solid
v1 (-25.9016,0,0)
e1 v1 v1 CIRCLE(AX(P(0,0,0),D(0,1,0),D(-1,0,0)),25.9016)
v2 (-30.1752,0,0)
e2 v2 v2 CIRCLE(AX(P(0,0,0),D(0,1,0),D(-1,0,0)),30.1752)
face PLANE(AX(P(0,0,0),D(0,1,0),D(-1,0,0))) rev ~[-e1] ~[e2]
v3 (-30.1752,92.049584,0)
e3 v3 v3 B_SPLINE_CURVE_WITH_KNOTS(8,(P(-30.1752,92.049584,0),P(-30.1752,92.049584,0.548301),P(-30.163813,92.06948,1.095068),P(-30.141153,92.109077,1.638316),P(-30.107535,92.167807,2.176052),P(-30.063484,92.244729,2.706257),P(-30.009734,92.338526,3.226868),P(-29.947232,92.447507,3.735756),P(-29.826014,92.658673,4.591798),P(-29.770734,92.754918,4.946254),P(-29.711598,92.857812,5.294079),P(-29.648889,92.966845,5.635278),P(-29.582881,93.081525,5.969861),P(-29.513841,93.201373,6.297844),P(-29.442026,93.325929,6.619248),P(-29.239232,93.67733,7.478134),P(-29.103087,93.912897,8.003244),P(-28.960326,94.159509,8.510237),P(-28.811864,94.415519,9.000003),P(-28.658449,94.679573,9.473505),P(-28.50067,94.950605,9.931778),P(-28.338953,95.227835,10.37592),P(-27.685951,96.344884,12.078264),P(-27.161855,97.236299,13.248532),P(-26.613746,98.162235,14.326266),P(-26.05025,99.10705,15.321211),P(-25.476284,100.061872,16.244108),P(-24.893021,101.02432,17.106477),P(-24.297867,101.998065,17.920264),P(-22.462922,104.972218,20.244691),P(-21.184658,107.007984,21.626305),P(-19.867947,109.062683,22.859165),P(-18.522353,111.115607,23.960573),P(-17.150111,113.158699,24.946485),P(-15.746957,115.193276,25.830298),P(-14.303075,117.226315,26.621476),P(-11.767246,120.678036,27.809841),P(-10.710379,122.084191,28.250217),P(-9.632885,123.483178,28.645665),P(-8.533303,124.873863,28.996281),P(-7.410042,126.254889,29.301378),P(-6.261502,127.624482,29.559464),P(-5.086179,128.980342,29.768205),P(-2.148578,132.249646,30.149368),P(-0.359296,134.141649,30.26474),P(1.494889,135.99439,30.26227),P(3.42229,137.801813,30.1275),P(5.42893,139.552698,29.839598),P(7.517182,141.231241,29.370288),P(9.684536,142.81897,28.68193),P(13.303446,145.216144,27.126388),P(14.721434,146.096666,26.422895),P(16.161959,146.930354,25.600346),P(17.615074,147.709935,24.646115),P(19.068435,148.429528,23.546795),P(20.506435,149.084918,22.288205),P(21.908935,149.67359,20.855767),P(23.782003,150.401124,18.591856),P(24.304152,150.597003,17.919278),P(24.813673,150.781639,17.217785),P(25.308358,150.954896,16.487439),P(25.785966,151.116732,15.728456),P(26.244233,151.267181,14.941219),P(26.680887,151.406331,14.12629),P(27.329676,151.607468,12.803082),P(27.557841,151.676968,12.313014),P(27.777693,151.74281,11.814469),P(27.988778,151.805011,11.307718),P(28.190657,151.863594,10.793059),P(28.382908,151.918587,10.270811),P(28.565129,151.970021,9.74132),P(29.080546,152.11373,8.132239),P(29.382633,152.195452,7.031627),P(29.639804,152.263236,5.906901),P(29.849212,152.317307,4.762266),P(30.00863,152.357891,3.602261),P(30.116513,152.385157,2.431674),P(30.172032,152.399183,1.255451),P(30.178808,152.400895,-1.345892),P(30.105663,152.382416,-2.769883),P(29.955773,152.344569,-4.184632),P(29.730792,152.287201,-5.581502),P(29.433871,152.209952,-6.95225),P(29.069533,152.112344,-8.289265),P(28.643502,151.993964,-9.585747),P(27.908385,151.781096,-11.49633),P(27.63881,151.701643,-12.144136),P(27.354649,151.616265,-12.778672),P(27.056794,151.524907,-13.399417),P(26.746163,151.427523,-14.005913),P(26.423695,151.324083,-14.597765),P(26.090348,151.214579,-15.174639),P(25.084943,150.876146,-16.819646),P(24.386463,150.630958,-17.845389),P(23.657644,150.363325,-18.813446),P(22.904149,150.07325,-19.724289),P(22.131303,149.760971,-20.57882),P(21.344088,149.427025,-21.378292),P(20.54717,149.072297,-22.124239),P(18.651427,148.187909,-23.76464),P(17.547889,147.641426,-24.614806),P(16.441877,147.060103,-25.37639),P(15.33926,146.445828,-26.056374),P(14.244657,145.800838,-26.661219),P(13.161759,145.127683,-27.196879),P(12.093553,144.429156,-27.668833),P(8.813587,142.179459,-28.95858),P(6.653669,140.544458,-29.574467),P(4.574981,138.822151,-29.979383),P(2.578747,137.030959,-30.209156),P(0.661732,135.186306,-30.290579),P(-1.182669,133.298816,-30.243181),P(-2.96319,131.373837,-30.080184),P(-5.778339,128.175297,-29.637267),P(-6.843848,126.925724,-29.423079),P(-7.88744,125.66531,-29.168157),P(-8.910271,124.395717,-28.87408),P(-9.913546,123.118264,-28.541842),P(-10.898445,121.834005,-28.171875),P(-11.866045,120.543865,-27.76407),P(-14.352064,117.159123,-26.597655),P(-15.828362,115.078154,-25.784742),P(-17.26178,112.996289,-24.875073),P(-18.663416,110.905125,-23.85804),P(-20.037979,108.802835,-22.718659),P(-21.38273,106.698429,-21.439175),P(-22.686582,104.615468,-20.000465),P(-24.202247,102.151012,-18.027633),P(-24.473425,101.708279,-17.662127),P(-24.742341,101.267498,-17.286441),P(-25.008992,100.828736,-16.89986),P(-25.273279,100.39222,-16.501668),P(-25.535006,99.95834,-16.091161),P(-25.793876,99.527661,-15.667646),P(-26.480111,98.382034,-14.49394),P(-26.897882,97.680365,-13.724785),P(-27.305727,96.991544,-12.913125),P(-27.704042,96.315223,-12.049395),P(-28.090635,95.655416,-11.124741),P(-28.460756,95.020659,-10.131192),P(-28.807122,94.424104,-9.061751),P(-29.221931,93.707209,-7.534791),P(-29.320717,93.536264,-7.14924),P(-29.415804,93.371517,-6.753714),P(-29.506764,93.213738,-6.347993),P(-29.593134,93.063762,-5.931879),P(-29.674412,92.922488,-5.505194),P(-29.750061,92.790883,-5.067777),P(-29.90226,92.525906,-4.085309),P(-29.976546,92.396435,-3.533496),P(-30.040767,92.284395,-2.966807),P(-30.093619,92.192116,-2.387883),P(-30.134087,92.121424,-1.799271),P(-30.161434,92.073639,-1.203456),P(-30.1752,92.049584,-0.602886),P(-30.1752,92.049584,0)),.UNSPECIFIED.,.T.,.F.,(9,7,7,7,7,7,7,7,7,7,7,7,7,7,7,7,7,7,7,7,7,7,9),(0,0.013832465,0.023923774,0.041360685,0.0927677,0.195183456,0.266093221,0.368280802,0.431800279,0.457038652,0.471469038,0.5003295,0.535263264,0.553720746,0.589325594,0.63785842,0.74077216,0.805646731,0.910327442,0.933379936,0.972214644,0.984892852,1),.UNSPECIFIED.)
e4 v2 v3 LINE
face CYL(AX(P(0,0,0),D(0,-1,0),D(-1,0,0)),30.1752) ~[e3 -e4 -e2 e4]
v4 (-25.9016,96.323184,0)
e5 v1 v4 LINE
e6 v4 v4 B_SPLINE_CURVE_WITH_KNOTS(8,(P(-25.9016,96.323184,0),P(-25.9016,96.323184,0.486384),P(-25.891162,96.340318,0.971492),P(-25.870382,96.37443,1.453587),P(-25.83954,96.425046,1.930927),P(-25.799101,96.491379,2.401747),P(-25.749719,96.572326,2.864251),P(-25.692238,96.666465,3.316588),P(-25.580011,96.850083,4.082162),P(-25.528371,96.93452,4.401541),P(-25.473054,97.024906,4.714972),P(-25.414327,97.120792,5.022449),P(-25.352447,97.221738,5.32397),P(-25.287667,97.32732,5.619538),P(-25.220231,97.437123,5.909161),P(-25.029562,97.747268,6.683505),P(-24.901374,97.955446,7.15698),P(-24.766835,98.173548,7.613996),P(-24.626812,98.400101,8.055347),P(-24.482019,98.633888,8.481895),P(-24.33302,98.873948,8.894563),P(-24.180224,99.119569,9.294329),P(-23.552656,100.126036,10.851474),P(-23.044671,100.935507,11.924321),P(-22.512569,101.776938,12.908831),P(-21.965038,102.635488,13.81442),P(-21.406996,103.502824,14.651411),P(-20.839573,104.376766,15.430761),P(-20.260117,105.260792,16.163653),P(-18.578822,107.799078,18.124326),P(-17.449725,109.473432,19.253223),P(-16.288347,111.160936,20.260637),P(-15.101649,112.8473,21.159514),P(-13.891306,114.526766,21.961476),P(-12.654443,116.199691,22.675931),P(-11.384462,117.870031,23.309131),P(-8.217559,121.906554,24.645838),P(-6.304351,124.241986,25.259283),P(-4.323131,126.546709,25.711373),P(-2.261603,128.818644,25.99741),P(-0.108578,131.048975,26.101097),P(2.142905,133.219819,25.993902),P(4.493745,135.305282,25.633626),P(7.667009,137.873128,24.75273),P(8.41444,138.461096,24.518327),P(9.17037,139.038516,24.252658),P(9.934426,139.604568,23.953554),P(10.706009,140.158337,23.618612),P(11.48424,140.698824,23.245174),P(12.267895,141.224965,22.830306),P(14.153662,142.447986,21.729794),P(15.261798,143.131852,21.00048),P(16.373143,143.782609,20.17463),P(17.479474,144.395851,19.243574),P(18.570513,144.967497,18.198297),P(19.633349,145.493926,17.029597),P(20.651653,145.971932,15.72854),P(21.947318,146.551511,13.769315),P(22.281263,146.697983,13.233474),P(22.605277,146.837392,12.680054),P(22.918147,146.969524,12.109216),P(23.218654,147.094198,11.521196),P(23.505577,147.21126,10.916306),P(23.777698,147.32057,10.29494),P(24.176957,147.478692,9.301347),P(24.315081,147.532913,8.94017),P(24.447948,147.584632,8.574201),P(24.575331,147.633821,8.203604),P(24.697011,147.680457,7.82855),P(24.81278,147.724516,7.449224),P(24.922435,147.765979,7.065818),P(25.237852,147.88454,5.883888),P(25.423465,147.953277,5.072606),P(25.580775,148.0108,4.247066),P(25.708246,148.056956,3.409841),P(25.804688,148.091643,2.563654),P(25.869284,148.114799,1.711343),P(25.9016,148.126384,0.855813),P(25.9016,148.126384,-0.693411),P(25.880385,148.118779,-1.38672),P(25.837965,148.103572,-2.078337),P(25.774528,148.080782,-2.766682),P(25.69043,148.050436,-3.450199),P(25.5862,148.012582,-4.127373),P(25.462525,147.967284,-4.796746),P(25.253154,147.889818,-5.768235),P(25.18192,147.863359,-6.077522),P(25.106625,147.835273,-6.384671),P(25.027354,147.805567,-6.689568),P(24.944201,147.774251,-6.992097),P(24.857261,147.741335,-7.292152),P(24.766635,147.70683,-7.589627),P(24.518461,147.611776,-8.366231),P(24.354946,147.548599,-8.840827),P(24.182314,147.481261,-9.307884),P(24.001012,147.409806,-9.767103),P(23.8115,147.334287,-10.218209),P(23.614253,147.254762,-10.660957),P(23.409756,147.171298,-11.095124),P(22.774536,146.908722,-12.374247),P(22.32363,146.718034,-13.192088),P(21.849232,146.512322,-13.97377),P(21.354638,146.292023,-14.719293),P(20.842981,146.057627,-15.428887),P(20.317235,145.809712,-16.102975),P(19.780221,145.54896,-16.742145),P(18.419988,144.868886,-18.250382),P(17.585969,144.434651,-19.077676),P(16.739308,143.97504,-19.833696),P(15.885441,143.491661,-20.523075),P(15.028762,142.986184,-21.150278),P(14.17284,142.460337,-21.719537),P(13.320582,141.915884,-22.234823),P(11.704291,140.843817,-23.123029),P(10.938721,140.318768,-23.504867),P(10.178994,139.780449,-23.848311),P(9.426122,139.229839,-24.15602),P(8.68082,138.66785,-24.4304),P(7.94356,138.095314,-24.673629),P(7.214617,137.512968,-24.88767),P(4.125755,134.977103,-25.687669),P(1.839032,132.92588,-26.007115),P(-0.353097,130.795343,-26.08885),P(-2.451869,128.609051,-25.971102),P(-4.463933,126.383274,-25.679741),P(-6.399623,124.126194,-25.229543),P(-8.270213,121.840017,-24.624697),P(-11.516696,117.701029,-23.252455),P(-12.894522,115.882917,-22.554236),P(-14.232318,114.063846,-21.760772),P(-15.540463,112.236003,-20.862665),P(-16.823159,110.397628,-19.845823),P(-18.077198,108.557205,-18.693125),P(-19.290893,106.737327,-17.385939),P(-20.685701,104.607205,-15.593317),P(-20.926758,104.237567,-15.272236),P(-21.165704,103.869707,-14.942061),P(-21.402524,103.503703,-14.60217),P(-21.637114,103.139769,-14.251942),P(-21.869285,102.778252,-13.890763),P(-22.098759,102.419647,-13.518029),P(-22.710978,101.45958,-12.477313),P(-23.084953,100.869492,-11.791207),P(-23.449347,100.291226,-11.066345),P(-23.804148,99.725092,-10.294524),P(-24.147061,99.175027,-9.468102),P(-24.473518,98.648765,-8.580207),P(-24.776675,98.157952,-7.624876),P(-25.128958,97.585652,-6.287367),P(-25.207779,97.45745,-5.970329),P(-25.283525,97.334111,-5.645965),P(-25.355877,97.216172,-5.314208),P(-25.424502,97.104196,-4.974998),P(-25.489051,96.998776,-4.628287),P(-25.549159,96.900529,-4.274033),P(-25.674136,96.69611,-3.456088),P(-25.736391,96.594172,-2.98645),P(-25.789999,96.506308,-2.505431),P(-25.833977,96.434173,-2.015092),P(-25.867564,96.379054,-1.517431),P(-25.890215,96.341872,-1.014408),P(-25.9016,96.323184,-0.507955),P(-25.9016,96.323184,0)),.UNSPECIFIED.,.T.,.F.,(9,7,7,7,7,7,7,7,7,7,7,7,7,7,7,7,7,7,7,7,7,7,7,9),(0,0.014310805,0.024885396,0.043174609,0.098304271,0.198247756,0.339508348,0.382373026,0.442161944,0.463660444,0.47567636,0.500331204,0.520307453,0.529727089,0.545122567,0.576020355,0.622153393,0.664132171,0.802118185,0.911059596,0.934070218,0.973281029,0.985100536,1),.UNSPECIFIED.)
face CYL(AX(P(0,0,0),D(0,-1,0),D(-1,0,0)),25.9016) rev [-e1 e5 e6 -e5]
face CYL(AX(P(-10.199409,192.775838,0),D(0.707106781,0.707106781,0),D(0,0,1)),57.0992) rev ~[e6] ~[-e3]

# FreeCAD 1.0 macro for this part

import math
import FreeCAD as App
import Part
import Sketcher

V = App.Vector
Q = App.Units.Quantity

doc = App.newDocument("Part")
body = doc.addObject("PartDesign::Body", "Body")

sketch1 = doc.addObject("Sketcher::SketchObject", "Sketch")
body.addObject(sketch1)
sketch1.AttachmentSupport = (doc.XZ_Plane, [""])
sketch1.MapMode = "FlatFace"
sketch1.addGeometry([
    Part.Circle(V(0, 0, 0), V(0, 0, 1), 30),
    Part.Circle(V(0, 0, 0), V(0, 0, 1), 26),
], False)
sketch1.addConstraint([
    Sketcher.Constraint("Coincident", 0, 3, -1, 1),
    Sketcher.Constraint("Coincident", 1, 3, -1, 1),
    Sketcher.Constraint("Diameter", 0, Q("2.376 in")),
    Sketcher.Constraint("Diameter", 1, Q("2.0395 in")),
])
pad1 = doc.addObject("PartDesign::Pad", "Pad")
body.addObject(pad1)
pad1.Profile = sketch1
pad1.Length = Q("6 in")
pad1.Reversed = True

sketch2 = doc.addObject("Sketcher::SketchObject", "Sketch001")
body.addObject(sketch2)
sketch2.Placement = App.Placement(V(15.0868, 167.4868, 0), App.Rotation(V(0, 0, -1), V(-0.707106781, 0.707106781, 0), V(0.707106781, 0.707106781, 0), "ZXY"))
sketch2.addGeometry([
    Part.LineSegment(V(57, 36, 0), V(-57, 36, 0)),
    Part.ArcOfCircle(Part.Circle(V(0, 36, 0), V(0, 0, 1), 57), math.radians(180), math.radians(360)),
], False)
sketch2.addConstraint([
    Sketcher.Constraint("Coincident", 0, 1, 1, 2),
    Sketcher.Constraint("Coincident", 1, 1, 0, 2),
    Sketcher.Constraint("Horizontal", 0),
    Sketcher.Constraint("PointOnObject", 1, 3, -2),
    Sketcher.Constraint("Horizontal", 1, 3, 0, 1),
    Sketcher.Constraint("Radius", 1, Q("2.248 in")),
    Sketcher.Constraint("DistanceY", -1, 1, 1, 3, 35.762),
])
pocket1 = doc.addObject("PartDesign::Pocket", "Pocket")
body.addObject(pocket1)
pocket1.Profile = sketch2
pocket1.Length = Q("6 in")

doc.recompute()
